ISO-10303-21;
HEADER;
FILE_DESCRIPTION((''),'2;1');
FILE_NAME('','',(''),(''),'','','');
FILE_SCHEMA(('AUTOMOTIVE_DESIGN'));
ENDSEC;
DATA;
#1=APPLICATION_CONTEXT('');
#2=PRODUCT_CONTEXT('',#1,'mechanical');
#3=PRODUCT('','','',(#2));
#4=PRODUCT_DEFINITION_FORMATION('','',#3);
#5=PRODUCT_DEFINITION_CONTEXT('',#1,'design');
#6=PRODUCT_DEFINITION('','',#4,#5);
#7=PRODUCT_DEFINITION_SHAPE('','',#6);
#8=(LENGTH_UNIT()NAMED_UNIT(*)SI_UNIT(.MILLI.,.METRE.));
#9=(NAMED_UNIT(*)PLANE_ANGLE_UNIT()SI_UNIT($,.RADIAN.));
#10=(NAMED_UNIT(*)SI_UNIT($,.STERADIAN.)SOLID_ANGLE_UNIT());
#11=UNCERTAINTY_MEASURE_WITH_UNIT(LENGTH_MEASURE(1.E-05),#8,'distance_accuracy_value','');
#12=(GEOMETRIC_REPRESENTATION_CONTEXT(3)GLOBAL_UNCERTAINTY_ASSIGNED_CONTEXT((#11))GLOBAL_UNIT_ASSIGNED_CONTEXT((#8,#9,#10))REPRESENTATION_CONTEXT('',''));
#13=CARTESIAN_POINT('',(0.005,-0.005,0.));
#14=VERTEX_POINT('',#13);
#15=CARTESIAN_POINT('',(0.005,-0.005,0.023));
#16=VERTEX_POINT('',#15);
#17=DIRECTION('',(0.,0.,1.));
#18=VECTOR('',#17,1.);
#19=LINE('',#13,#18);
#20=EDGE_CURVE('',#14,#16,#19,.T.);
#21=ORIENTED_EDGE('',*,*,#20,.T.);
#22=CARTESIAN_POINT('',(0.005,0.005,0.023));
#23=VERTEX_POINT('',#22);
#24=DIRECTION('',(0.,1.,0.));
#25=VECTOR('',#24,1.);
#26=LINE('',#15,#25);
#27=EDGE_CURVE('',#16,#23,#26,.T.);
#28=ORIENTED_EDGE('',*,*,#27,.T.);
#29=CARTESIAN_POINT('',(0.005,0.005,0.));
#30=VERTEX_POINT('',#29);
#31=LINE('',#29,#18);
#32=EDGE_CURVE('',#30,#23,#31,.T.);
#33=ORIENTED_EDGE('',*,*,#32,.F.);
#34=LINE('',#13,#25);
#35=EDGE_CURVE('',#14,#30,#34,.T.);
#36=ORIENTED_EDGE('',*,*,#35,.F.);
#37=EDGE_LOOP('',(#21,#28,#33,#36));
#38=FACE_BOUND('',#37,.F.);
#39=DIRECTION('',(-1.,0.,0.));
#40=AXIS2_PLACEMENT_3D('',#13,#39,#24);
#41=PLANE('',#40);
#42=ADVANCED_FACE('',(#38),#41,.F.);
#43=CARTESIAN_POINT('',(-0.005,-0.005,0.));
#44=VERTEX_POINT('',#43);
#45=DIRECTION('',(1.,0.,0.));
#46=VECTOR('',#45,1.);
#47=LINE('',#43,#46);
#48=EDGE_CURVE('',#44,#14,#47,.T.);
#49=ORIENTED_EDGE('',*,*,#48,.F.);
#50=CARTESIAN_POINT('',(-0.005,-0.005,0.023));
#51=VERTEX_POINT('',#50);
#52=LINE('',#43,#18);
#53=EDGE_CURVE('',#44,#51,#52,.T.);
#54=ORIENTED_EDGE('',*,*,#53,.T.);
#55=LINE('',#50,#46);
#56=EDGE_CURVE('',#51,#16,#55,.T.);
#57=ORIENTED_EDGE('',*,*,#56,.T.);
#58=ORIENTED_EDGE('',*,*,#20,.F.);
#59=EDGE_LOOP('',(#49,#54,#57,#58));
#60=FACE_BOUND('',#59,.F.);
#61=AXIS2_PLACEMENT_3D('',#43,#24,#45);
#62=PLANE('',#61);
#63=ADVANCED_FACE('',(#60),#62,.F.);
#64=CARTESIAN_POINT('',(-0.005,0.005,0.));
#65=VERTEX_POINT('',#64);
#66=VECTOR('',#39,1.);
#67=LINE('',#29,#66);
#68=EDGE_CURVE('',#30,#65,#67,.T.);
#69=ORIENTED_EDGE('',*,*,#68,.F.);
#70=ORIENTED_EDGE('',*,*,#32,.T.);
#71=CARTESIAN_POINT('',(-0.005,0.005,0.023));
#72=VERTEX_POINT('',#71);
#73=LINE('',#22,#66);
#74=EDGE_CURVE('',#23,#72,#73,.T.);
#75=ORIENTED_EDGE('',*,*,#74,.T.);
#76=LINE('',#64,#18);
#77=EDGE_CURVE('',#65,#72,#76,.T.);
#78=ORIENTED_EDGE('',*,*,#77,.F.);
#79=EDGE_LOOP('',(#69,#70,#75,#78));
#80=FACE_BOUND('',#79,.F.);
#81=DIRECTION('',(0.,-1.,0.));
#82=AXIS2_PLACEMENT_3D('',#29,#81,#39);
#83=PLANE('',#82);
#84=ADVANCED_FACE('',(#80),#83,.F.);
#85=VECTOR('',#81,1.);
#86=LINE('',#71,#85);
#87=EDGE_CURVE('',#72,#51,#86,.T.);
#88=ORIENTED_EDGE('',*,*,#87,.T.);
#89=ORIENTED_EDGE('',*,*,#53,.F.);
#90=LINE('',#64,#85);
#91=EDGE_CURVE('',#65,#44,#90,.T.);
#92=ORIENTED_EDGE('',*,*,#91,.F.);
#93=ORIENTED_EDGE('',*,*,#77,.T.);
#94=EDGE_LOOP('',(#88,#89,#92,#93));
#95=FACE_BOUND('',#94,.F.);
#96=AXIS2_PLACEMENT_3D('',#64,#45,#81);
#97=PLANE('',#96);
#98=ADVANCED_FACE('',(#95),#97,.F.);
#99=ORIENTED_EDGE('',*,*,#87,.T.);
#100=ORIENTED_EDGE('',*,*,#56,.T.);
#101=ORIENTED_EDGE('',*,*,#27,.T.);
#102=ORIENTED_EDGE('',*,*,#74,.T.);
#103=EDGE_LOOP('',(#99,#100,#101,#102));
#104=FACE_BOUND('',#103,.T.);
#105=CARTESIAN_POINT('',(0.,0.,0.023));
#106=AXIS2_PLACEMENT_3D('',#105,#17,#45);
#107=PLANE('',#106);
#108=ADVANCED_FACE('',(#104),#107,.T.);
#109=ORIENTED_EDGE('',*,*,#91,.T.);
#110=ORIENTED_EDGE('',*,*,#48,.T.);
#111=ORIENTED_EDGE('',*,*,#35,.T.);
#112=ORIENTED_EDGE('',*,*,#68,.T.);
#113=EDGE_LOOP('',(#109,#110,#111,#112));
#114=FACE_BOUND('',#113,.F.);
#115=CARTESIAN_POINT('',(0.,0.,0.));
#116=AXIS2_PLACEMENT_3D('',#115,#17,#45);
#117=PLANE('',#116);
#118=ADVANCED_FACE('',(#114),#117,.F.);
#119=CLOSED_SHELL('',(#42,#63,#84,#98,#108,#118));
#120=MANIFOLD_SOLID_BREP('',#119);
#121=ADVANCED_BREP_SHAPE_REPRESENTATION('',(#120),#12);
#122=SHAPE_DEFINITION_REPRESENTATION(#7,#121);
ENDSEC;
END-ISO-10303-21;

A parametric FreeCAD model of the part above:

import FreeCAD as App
import Part
import Sketcher

V = App.Vector

doc = App.newDocument("Part")
body = doc.addObject("PartDesign::Body", "Body")

sketch1 = body.newObject("Sketcher::SketchObject", "Sketch")
sketch1.AttachmentSupport = (doc.getObject("XY_Plane"), [""])
sketch1.MapMode = "FlatFace"
sketch1.addGeometry([
    Part.LineSegment(V(-0.005, 0.005, 0), V(-0.005, -0.005, 0)),
    Part.LineSegment(V(-0.005, -0.005, 0), V(0.005, -0.005, 0)),
    Part.LineSegment(V(0.005, -0.005, 0), V(0.005, 0.005, 0)),
    Part.LineSegment(V(0.005, 0.005, 0), V(-0.005, 0.005, 0)),
], False)
sketch1.addConstraint([
    Sketcher.Constraint("Coincident", 0, 2, 1, 1),
    Sketcher.Constraint("Coincident", 1, 2, 2, 1),
    Sketcher.Constraint("Coincident", 2, 2, 3, 1),
    Sketcher.Constraint("Coincident", 3, 2, 0, 1),
    Sketcher.Constraint("Vertical", 0),
    Sketcher.Constraint("Horizontal", 1),
    Sketcher.Constraint("Vertical", 2),
    Sketcher.Constraint("Horizontal", 3),
    Sketcher.Constraint("Symmetric", 0, 2, 2, 2, -1, 1),
    Sketcher.Constraint("Equal", 3, 0),
    Sketcher.Constraint("DistanceX", 0, 2, -1, 1, 0.005),
])
pad1 = body.newObject("PartDesign::Pad", "Pad")
pad1.Profile = sketch1
pad1.Length = 0.023

doc.recompute()
